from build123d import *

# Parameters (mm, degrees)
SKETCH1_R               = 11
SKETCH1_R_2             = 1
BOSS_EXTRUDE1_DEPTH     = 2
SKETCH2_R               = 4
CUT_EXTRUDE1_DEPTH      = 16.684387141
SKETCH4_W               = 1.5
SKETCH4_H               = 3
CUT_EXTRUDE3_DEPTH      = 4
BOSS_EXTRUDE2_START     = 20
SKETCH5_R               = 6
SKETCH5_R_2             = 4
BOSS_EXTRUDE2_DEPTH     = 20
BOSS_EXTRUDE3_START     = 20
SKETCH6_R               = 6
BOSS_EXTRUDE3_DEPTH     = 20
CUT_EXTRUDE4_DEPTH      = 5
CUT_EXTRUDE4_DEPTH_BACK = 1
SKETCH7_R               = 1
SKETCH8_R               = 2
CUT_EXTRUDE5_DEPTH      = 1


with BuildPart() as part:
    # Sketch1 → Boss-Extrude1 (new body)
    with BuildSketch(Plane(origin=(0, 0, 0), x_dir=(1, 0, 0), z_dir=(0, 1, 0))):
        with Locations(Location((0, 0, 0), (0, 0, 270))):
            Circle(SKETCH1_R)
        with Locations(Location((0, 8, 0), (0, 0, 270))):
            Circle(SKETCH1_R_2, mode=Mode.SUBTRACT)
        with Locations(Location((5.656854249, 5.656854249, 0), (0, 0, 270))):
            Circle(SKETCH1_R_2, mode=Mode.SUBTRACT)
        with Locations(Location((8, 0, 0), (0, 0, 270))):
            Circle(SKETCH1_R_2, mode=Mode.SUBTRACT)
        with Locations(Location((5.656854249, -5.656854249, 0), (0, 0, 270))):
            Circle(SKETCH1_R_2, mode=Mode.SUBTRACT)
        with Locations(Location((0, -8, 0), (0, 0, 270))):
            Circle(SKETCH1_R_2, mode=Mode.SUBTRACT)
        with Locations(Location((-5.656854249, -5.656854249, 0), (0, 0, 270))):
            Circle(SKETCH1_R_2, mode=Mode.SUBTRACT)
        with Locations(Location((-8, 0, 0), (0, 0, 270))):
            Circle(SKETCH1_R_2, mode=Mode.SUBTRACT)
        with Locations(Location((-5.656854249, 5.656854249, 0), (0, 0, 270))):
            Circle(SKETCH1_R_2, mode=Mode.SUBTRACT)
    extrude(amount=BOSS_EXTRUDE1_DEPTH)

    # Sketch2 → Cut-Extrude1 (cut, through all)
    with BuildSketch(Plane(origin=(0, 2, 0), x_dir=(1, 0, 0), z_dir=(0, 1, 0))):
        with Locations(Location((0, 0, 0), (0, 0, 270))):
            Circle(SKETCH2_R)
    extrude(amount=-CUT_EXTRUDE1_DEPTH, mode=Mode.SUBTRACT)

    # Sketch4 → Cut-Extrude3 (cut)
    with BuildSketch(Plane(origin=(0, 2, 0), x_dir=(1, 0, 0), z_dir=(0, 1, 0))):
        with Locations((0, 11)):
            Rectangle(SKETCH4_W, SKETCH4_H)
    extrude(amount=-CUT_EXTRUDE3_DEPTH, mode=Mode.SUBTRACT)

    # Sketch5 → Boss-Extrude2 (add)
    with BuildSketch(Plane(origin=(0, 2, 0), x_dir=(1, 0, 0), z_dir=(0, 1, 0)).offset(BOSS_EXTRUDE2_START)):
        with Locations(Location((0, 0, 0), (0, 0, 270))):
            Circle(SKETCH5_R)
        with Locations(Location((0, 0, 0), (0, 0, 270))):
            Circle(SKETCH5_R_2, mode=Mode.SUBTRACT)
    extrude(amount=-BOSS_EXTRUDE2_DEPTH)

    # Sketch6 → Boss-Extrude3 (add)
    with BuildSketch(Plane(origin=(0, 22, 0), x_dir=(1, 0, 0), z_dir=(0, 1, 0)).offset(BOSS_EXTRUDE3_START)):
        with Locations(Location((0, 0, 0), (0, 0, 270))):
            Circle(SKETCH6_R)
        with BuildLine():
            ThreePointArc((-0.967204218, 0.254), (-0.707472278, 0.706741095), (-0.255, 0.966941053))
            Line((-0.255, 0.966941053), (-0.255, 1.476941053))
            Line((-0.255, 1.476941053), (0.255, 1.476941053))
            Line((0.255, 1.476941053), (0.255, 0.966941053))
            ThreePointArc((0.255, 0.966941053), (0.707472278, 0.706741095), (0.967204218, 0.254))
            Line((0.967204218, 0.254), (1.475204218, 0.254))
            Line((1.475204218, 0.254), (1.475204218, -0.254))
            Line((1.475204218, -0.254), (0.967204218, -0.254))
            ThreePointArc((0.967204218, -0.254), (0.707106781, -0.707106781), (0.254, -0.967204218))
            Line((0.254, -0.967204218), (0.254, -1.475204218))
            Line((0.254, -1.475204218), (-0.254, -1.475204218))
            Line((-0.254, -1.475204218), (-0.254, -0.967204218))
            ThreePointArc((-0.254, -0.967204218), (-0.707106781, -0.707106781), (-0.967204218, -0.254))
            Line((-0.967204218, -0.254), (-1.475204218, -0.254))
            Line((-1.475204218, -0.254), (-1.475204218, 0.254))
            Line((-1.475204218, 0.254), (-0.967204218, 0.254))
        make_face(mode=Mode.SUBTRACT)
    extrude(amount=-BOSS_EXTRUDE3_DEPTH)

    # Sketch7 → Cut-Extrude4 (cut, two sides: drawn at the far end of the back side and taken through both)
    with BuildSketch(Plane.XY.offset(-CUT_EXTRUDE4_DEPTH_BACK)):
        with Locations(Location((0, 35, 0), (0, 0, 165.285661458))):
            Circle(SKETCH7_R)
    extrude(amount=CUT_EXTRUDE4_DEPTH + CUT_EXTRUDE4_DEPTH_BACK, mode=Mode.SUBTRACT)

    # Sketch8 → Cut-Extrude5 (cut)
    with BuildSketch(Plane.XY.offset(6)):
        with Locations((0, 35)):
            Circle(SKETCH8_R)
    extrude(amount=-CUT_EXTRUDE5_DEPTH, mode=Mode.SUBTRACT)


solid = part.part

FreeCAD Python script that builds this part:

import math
import FreeCAD as App
import Part
import Sketcher


def add_polygon(sketch, points):
    """Adds a closed chain of lines whose ends are joined by coincident constraints."""
    first, n = sketch.GeometryCount, len(points)
    for a, b in zip(points, points[1:] + points[:1]):
        sketch.addGeometry(Part.LineSegment(App.Vector(*a, 0), App.Vector(*b, 0)), False)
    for i in range(n):
        sketch.addConstraint(Sketcher.Constraint("Coincident", first + i, 2, first + (i + 1) % n, 1))

doc = App.newDocument("Part")
body = doc.addObject("PartDesign::Body", "Body")

# Sketch on XZ plane
sketch1 = doc.addObject("Sketcher::SketchObject", "Sketch")
body.addObject(sketch1)
sketch1.AttachmentSupport = (doc.XZ_Plane, [""])
sketch1.MapMode = "FlatFace"
sketch1.addGeometry(Part.Circle(App.Vector(0, 0, 0), App.Vector(0, 0, 1), 11), False)
sketch1.addGeometry(Part.Circle(App.Vector(-5.7, -5.7, 0), App.Vector(0, 0, 1), 1), False)
sketch1.addGeometry(Part.Circle(App.Vector(0, -8, 0), App.Vector(0, 0, 1), 1), False)
sketch1.addGeometry(Part.Circle(App.Vector(-8, 0, 0), App.Vector(0, 0, 1), 1), False)
sketch1.addGeometry(Part.Circle(App.Vector(-5.7, 5.7, 0), App.Vector(0, 0, 1), 1), False)
sketch1.addGeometry(Part.Circle(App.Vector(5.7, -5.7, 0), App.Vector(0, 0, 1), 1), False)
sketch1.addGeometry(Part.Circle(App.Vector(8, 0, 0), App.Vector(0, 0, 1), 1), False)
sketch1.addGeometry(Part.Circle(App.Vector(0, 8, 0), App.Vector(0, 0, 1), 1), False)
sketch1.addGeometry(Part.Circle(App.Vector(5.7, 5.7, 0), App.Vector(0, 0, 1), 1), False)
sketch1.addConstraint(Sketcher.Constraint("Coincident", 0, 3, -1, 1))
sketch1.addConstraint(Sketcher.Constraint("Equal", 1, 2))
sketch1.addConstraint(Sketcher.Constraint("Equal", 2, 3))
sketch1.addConstraint(Sketcher.Constraint("Equal", 3, 4))
sketch1.addConstraint(Sketcher.Constraint("Equal", 4, 5))
sketch1.addConstraint(Sketcher.Constraint("Equal", 5, 6))
sketch1.addConstraint(Sketcher.Constraint("Equal", 6, 7))
sketch1.addConstraint(Sketcher.Constraint("Equal", 7, 8))
sketch1.addConstraint(Sketcher.Constraint("Symmetric", 4, 3, 5, 3, -1, 1))
sketch1.addConstraint(Sketcher.Constraint("Symmetric", 3, 3, 6, 3, -1, 1))
sketch1.addConstraint(Sketcher.Constraint("Symmetric", 2, 3, 7, 3, -1, 1))
sketch1.addConstraint(Sketcher.Constraint("Symmetric", 1, 3, 8, 3, -1, 1))
sketch1.addConstraint(Sketcher.Constraint("Symmetric", 1, 3, 5, 3, -2))
sketch1.addConstraint(Sketcher.Constraint("PointOnObject", 2, 3, -2))
sketch1.addConstraint(Sketcher.Constraint("PointOnObject", 3, 3, -1))
sketch1.addConstraint(Sketcher.Constraint("Diameter", 0, 22.0))
sketch1.addConstraint(Sketcher.Constraint("Diameter", 1, 2.0))
sketch1.addConstraint(Sketcher.Constraint("DistanceY", 2, 3, -1, 1, 8.0))
sketch1.addConstraint(Sketcher.Constraint("DistanceX", 3, 3, -1, 1, 8.0))
sketch1.addConstraint(Sketcher.Constraint("DistanceY", 1, 3, 4, 3, 11.313708))
sketch1.addConstraint(Sketcher.Constraint("DistanceX", 1, 3, 5, 3, 11.313708))
pad1 = doc.addObject("PartDesign::Pad", "Pad")
body.addObject(pad1)
pad1.Profile = sketch1
pad1.Length = 2
pad1.Reversed = True

# Sketch on XZ plane
sketch2 = doc.addObject("Sketcher::SketchObject", "Sketch001")
body.addObject(sketch2)
sketch2.AttachmentSupport = (doc.XZ_Plane, [""])
sketch2.MapMode = "FlatFace"
sketch2.AttachmentOffset = App.Placement(App.Vector(0, 0, -2), App.Rotation())
sketch2.addGeometry(Part.Circle(App.Vector(0, 0, 0), App.Vector(0, 0, 1), 4), False)
sketch2.addConstraint(Sketcher.Constraint("Coincident", 0, 3, -1, 1))
sketch2.addConstraint(Sketcher.Constraint("Diameter", 0, 8.0))
pocket1 = doc.addObject("PartDesign::Pocket", "Pocket")
body.addObject(pocket1)
pocket1.Profile = sketch2
pocket1.Type = "ThroughAll"
pocket1.Reversed = True

# Sketch on XZ plane
sketch3 = doc.addObject("Sketcher::SketchObject", "Sketch002")
body.addObject(sketch3)
sketch3.AttachmentSupport = (doc.XZ_Plane, [""])
sketch3.MapMode = "FlatFace"
sketch3.AttachmentOffset = App.Placement(App.Vector(0, 0, -2), App.Rotation())
add_polygon(sketch3, [(-0.8, -12.5), (-0.8, -9.5), (0.8, -9.5), (0.8, -12.5)])  # lines 0-3
sketch3.addConstraint(Sketcher.Constraint("Vertical", 0))
sketch3.addConstraint(Sketcher.Constraint("Horizontal", 1))
sketch3.addConstraint(Sketcher.Constraint("Vertical", 2))
sketch3.addConstraint(Sketcher.Constraint("Horizontal", 3))
sketch3.addConstraint(Sketcher.Constraint("DistanceY", 0, 1, 0, 2, 3.0))
sketch3.addConstraint(Sketcher.Constraint("DistanceX", 1, 1, 1, 2, 1.5))
sketch3.addConstraint(Sketcher.Constraint("DistanceY", 0, 2, -1, 1, 9.5))
sketch3.addConstraint(Sketcher.Constraint("DistanceX", 0, 2, -1, 1, 0.75))
pocket2 = doc.addObject("PartDesign::Pocket", "Pocket001")
body.addObject(pocket2)
pocket2.Profile = sketch3
pocket2.Length = 4
pocket2.Reversed = True

# Sketch on XZ plane
sketch4 = doc.addObject("Sketcher::SketchObject", "Sketch003")
body.addObject(sketch4)
sketch4.AttachmentSupport = (doc.XZ_Plane, [""])
sketch4.MapMode = "FlatFace"
sketch4.AttachmentOffset = App.Placement(App.Vector(0, 0, -22), App.Rotation())
sketch4.addGeometry(Part.Circle(App.Vector(0, 0, 0), App.Vector(0, 0, 1), 6), False)
sketch4.addGeometry(Part.Circle(App.Vector(0, 0, 0), App.Vector(0, 0, 1), 4), False)
sketch4.addConstraint(Sketcher.Constraint("Coincident", 0, 3, -1, 1))
sketch4.addConstraint(Sketcher.Constraint("Coincident", 1, 3, -1, 1))
sketch4.addConstraint(Sketcher.Constraint("Diameter", 0, 12.0))
sketch4.addConstraint(Sketcher.Constraint("Diameter", 1, 8.0))
pad2 = doc.addObject("PartDesign::Pad", "Pad001")
body.addObject(pad2)
pad2.Profile = sketch4
pad2.Length = 20

# Sketch on XZ plane
sketch5 = doc.addObject("Sketcher::SketchObject", "Sketch004")
body.addObject(sketch5)
sketch5.AttachmentSupport = (doc.XZ_Plane, [""])
sketch5.MapMode = "FlatFace"
sketch5.AttachmentOffset = App.Placement(App.Vector(0, 0, -42), App.Rotation())
sketch5.addGeometry(Part.Circle(App.Vector(0, 0, 0), App.Vector(0, 0, 1), 6), False)
sketch5.addGeometry(Part.LineSegment(App.Vector(-1.5, -0.3, 0), App.Vector(-1, -0.3, 0)), False)
sketch5.addGeometry(Part.ArcOfCircle(Part.Circle(App.Vector(0, 0, 0), App.Vector(0, 0, 1), 1), math.radians(-165), math.radians(-105)), False)
sketch5.addGeometry(Part.LineSegment(App.Vector(-0.3, -1, 0), App.Vector(-0.3, -1.5, 0)), False)
sketch5.addGeometry(Part.LineSegment(App.Vector(-0.3, -1.5, 0), App.Vector(0.3, -1.5, 0)), False)
sketch5.addGeometry(Part.LineSegment(App.Vector(0.3, -1.5, 0), App.Vector(0.3, -1, 0)), False)
sketch5.addGeometry(Part.ArcOfCircle(Part.Circle(App.Vector(0, 0, 0), App.Vector(0, 0, 1), 1), math.radians(-75), math.radians(-15)), False)
sketch5.addGeometry(Part.LineSegment(App.Vector(1, -0.3, 0), App.Vector(1.5, -0.3, 0)), False)
sketch5.addGeometry(Part.LineSegment(App.Vector(1.5, -0.3, 0), App.Vector(1.5, 0.3, 0)), False)
sketch5.addGeometry(Part.LineSegment(App.Vector(1.5, 0.3, 0), App.Vector(1, 0.3, 0)), False)
sketch5.addGeometry(Part.ArcOfCircle(Part.Circle(App.Vector(0, 0, 0), App.Vector(0, 0, 1), 1), math.radians(15), math.radians(75)), False)
sketch5.addGeometry(Part.LineSegment(App.Vector(0.3, 1, 0), App.Vector(0.3, 1.5, 0)), False)
sketch5.addGeometry(Part.LineSegment(App.Vector(0.3, 1.5, 0), App.Vector(-0.3, 1.5, 0)), False)
sketch5.addGeometry(Part.LineSegment(App.Vector(-0.3, 1.5, 0), App.Vector(-0.3, 1, 0)), False)
sketch5.addGeometry(Part.ArcOfCircle(Part.Circle(App.Vector(0, 0, 0), App.Vector(0, 0, 1), 1), math.radians(105), math.radians(165)), False)
sketch5.addGeometry(Part.LineSegment(App.Vector(-1, 0.3, 0), App.Vector(-1.5, 0.3, 0)), False)
sketch5.addGeometry(Part.LineSegment(App.Vector(-1.5, 0.3, 0), App.Vector(-1.5, -0.3, 0)), False)
sketch5.addConstraint(Sketcher.Constraint("Coincident", 1, 2, 2, 1))
sketch5.addConstraint(Sketcher.Constraint("Coincident", 2, 2, 3, 1))
sketch5.addConstraint(Sketcher.Constraint("Coincident", 3, 2, 4, 1))
sketch5.addConstraint(Sketcher.Constraint("Coincident", 4, 2, 5, 1))
sketch5.addConstraint(Sketcher.Constraint("Coincident", 5, 2, 6, 1))
sketch5.addConstraint(Sketcher.Constraint("Coincident", 6, 2, 7, 1))
sketch5.addConstraint(Sketcher.Constraint("Coincident", 7, 2, 8, 1))
sketch5.addConstraint(Sketcher.Constraint("Coincident", 8, 2, 9, 1))
sketch5.addConstraint(Sketcher.Constraint("Coincident", 9, 2, 10, 1))
sketch5.addConstraint(Sketcher.Constraint("Coincident", 10, 2, 11, 1))
sketch5.addConstraint(Sketcher.Constraint("Coincident", 11, 2, 12, 1))
sketch5.addConstraint(Sketcher.Constraint("Coincident", 12, 2, 13, 1))
sketch5.addConstraint(Sketcher.Constraint("Coincident", 13, 2, 14, 1))
sketch5.addConstraint(Sketcher.Constraint("Coincident", 14, 2, 15, 1))
sketch5.addConstraint(Sketcher.Constraint("Coincident", 15, 2, 16, 1))
sketch5.addConstraint(Sketcher.Constraint("Coincident", 16, 2, 1, 1))
sketch5.addConstraint(Sketcher.Constraint("Horizontal", 1))
sketch5.addConstraint(Sketcher.Constraint("Vertical", 3))
sketch5.addConstraint(Sketcher.Constraint("Horizontal", 4))
sketch5.addConstraint(Sketcher.Constraint("Vertical", 5))
sketch5.addConstraint(Sketcher.Constraint("Horizontal", 7))
sketch5.addConstraint(Sketcher.Constraint("Vertical", 8))
sketch5.addConstraint(Sketcher.Constraint("Horizontal", 9))
sketch5.addConstraint(Sketcher.Constraint("Vertical", 11))
sketch5.addConstraint(Sketcher.Constraint("Horizontal", 12))
sketch5.addConstraint(Sketcher.Constraint("Vertical", 13))
sketch5.addConstraint(Sketcher.Constraint("Horizontal", 15))
sketch5.addConstraint(Sketcher.Constraint("Vertical", 16))
sketch5.addConstraint(Sketcher.Constraint("Coincident", 0, 3, -1, 1))
sketch5.addConstraint(Sketcher.Constraint("Coincident", 2, 3, -1, 1))
sketch5.addConstraint(Sketcher.Constraint("Coincident", 6, 3, -1, 1))
sketch5.addConstraint(Sketcher.Constraint("Coincident", 10, 3, -1, 1))
sketch5.addConstraint(Sketcher.Constraint("Coincident", 14, 3, -1, 1))
sketch5.addConstraint(Sketcher.Constraint("Equal", 2, 6))
sketch5.addConstraint(Sketcher.Constraint("Equal", 6, 10))
sketch5.addConstraint(Sketcher.Constraint("Equal", 10, 14))
sketch5.addConstraint(Sketcher.Constraint("Symmetric", 7, 2, 15, 2, -1, 1))
sketch5.addConstraint(Sketcher.Constraint("Horizontal", 2, 2, 5, 2))
sketch5.addConstraint(Sketcher.Constraint("Horizontal", 1, 2, 6, 2))
sketch5.addConstraint(Sketcher.Constraint("Horizontal", 10, 2, 13, 2))
sketch5.addConstraint(Sketcher.Constraint("Horizontal", 9, 2, 14, 2))
sketch5.addConstraint(Sketcher.Constraint("Equal", 9, 12))
sketch5.addConstraint(Sketcher.Constraint("Equal", 4, 3))
sketch5.addConstraint(Sketcher.Constraint("Equal", 15, 8))
sketch5.addConstraint(Sketcher.Constraint("Equal", 8, 11))
sketch5.addConstraint(Sketcher.Constraint("Diameter", 0, 12.0))
sketch5.addConstraint(Sketcher.Constraint("Radius", 2, 1.0))
sketch5.addConstraint(Sketcher.Constraint("DistanceX", 4, 1, 4, 2, 0.51))
sketch5.addConstraint(Sketcher.Constraint("DistanceX", 1, 1, 1, 2, 0.508))
pad3 = doc.addObject("PartDesign::Pad", "Pad002")
body.addObject(pad3)
pad3.Profile = sketch5
pad3.Length = 20

# Sketch on XY plane
sketch6 = doc.addObject("Sketcher::SketchObject", "Sketch005")
body.addObject(sketch6)
sketch6.AttachmentSupport = (doc.XY_Plane, [""])
sketch6.MapMode = "FlatFace"
sketch6.addGeometry(Part.Circle(App.Vector(0, 35, 0), App.Vector(0, 0, 1), 1), False)
sketch6.addConstraint(Sketcher.Constraint("PointOnObject", 0, 3, -2))
sketch6.addConstraint(Sketcher.Constraint("Diameter", 0, 2.0))
sketch6.addConstraint(Sketcher.Constraint("DistanceY", -1, 1, 0, 3, 35.0))
pocket3 = doc.addObject("PartDesign::Pocket", "Pocket002")
body.addObject(pocket3)
pocket3.Profile = sketch6
pocket3.Type = "TwoLengths"
pocket3.Length = 5
pocket3.Length2 = 1
pocket3.Reversed = True

# Sketch on XY plane
sketch7 = doc.addObject("Sketcher::SketchObject", "Sketch006")
body.addObject(sketch7)
sketch7.AttachmentSupport = (doc.XY_Plane, [""])
sketch7.MapMode = "FlatFace"
sketch7.AttachmentOffset = App.Placement(App.Vector(0, 0, 6), App.Rotation())
sketch7.addGeometry(Part.Circle(App.Vector(0, 35, 0), App.Vector(0, 0, 1), 2), False)
sketch7.addConstraint(Sketcher.Constraint("PointOnObject", 0, 3, -2))
sketch7.addConstraint(Sketcher.Constraint("Diameter", 0, 4.0))
sketch7.addConstraint(Sketcher.Constraint("DistanceY", -1, 1, 0, 3, 35.0))
pocket4 = doc.addObject("PartDesign::Pocket", "Pocket003")
body.addObject(pocket4)
pocket4.Profile = sketch7
pocket4.Length = 1

doc.recompute()
